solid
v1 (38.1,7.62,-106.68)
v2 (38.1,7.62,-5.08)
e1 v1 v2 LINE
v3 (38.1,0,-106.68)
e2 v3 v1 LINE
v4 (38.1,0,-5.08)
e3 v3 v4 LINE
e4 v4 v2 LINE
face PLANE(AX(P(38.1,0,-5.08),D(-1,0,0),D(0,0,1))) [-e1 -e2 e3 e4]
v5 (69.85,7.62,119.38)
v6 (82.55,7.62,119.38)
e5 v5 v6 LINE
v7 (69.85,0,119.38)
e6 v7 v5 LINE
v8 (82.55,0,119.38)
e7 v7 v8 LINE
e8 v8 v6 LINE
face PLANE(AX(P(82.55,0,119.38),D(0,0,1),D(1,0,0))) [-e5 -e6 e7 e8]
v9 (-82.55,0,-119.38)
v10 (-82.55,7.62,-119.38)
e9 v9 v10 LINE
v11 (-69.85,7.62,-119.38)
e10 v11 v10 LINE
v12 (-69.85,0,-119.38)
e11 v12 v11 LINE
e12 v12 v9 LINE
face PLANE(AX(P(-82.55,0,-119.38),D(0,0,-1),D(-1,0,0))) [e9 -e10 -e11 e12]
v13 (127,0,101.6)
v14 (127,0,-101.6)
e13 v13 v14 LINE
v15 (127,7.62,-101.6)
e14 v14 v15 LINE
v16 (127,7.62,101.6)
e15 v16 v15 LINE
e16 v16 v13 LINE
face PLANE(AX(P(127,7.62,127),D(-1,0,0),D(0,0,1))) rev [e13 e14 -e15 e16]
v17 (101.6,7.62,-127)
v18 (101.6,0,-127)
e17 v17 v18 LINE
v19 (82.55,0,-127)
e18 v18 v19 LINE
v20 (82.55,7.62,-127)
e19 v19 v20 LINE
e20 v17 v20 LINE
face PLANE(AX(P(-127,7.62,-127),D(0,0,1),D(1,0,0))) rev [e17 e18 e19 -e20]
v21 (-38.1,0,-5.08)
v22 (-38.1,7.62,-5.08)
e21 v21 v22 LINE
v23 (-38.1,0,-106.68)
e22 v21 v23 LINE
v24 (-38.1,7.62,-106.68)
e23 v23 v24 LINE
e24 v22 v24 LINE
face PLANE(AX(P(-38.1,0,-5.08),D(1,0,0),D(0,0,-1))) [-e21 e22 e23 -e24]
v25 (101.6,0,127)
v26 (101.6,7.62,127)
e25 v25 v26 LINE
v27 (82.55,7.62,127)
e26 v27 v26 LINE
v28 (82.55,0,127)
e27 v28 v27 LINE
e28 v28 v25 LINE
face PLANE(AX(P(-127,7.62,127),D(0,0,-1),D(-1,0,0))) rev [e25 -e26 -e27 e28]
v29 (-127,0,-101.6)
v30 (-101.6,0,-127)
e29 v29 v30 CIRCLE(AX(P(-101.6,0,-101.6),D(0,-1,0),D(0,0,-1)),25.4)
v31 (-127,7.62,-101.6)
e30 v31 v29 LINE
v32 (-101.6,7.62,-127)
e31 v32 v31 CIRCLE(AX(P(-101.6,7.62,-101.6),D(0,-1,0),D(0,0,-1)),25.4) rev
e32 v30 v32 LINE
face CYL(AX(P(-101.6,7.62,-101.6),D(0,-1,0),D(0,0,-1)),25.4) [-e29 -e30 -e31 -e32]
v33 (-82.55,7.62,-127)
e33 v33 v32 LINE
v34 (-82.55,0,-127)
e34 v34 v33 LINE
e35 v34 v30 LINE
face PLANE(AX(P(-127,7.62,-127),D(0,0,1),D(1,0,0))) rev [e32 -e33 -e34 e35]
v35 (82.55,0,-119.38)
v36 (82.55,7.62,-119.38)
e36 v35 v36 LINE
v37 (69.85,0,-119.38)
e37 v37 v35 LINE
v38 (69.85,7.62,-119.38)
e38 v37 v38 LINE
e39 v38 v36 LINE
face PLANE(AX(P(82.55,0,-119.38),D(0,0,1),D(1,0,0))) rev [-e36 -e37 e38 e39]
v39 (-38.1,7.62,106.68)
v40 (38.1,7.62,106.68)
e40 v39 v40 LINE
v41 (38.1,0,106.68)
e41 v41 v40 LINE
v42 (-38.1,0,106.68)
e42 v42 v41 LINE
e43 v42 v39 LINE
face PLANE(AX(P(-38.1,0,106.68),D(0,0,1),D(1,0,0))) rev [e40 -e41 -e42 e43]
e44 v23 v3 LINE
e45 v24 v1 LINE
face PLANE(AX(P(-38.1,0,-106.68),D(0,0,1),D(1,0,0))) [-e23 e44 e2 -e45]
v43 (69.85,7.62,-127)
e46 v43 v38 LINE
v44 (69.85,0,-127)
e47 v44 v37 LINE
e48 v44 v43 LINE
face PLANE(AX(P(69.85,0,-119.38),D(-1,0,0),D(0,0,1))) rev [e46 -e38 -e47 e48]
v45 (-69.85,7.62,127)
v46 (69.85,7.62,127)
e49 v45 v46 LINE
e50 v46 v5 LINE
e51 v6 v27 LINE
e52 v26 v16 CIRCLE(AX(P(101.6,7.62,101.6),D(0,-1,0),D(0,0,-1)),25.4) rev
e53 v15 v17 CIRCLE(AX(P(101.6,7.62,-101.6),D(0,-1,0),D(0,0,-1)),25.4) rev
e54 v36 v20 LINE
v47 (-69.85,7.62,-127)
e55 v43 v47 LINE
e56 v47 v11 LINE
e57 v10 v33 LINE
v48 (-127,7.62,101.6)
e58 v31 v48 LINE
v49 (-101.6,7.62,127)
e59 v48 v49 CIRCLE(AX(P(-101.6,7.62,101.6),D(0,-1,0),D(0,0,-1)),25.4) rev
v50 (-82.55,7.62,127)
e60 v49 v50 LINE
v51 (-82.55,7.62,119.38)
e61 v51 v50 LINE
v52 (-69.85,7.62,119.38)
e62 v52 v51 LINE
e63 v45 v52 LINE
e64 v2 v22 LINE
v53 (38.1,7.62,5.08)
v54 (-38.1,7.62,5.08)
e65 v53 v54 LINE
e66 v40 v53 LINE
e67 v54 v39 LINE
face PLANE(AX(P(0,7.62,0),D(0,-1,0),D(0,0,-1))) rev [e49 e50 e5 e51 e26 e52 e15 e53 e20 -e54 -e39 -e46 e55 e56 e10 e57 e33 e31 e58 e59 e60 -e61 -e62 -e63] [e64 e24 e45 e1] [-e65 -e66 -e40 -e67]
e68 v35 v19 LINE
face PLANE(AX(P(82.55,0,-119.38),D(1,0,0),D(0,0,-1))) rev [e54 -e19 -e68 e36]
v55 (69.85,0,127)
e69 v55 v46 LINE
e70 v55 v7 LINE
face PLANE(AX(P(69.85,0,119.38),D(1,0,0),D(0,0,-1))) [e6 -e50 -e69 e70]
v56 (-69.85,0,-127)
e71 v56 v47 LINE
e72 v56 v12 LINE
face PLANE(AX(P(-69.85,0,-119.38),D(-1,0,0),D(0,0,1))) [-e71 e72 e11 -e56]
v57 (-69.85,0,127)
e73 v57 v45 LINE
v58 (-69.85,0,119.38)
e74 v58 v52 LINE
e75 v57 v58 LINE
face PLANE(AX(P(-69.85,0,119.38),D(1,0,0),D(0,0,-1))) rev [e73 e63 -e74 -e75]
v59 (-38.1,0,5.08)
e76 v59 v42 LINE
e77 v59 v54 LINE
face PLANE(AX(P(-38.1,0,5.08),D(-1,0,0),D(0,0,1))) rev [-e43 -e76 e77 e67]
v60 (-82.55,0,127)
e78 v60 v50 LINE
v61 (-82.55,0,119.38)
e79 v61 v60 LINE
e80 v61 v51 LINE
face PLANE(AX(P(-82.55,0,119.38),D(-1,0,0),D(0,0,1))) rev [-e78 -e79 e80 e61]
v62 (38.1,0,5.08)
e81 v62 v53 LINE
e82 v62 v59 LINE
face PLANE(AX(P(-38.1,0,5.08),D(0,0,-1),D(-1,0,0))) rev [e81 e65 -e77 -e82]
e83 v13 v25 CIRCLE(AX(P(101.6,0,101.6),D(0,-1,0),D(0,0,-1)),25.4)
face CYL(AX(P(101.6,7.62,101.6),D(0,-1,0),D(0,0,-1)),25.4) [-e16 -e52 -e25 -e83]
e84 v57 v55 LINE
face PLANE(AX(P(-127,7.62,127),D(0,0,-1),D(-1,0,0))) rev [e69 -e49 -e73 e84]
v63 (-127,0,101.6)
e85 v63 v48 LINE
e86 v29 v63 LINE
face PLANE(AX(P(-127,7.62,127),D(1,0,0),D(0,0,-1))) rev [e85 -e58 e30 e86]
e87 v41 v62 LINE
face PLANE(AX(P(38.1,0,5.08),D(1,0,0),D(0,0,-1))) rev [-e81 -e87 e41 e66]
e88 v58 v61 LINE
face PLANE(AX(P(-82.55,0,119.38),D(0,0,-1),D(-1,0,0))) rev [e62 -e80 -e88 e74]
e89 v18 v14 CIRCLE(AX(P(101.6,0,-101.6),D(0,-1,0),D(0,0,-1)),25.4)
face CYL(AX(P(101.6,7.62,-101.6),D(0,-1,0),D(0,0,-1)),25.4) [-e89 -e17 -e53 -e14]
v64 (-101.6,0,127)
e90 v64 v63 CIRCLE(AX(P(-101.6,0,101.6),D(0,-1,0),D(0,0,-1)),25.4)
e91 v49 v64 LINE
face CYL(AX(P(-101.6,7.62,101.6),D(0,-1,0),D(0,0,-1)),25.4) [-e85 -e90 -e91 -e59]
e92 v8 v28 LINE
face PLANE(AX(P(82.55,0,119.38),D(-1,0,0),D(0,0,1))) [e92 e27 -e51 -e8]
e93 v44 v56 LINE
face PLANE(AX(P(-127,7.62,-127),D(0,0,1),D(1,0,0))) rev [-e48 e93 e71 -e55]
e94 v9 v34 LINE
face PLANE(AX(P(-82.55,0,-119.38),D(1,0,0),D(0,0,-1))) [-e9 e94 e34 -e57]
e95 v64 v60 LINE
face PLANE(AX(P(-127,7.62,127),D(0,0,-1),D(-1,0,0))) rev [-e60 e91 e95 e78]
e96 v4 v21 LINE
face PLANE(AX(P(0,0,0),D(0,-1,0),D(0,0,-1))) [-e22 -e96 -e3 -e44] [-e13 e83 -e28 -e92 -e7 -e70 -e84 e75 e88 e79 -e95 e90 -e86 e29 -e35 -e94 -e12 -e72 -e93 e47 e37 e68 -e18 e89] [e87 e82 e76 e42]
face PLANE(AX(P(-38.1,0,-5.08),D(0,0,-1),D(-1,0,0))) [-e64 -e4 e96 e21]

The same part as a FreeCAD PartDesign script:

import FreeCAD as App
import Part
import Sketcher

V = App.Vector
Q = App.Units.Quantity


def edges_at(feature, points):
    """Names of the edges that pass closest to the given points."""
    edges = feature.Shape.Edges
    near = lambda p: min(range(len(edges)), key=lambda i: edges[i].distToShape(Part.Vertex(*p))[0])
    return sorted({f"Edge{near(p) + 1}" for p in points})


def add_polygon(sketch, points):
    """Adds a closed chain of lines whose ends are joined by coincident constraints."""
    first, n = sketch.GeometryCount, len(points)
    for a, b in zip(points, points[1:] + points[:1]):
        sketch.addGeometry(Part.LineSegment(App.Vector(*a, 0), App.Vector(*b, 0)), False)
    for i in range(n):
        sketch.addConstraint(Sketcher.Constraint("Coincident", first + i, 2, first + (i + 1) % n, 1))

doc = App.newDocument("Part")
body = doc.addObject("PartDesign::Body", "Body")

sketch1 = doc.addObject("Sketcher::SketchObject", "Sketch")
body.addObject(sketch1)
sketch1.AttachmentSupport = (doc.XZ_Plane, [""])
sketch1.MapMode = "FlatFace"
add_polygon(sketch1, [(-127, -127), (-127, 127), (127, 127), (127, -127)])
sketch1.addConstraint([
    Sketcher.Constraint("Vertical", 0),
    Sketcher.Constraint("Horizontal", 1),
    Sketcher.Constraint("Vertical", 2),
    Sketcher.Constraint("Horizontal", 3),
    Sketcher.Constraint("Symmetric", 0, 2, 2, 2, -1, 1),
    Sketcher.Constraint("Equal", 3, 0),
    Sketcher.Constraint("DistanceX", 1, 1, 1, 2, Q("10 in")),
])
pad1 = doc.addObject("PartDesign::Pad", "Pad")
body.addObject(pad1)
pad1.Profile = sketch1
pad1.Length = Q("0.3 in")
pad1.Reversed = True

sketch2 = doc.addObject("Sketcher::SketchObject", "Sketch001")
body.addObject(sketch2)
sketch2.AttachmentSupport = (doc.XZ_Plane, [""])
sketch2.MapMode = "FlatFace"
sketch2.AttachmentOffset = App.Placement(V(0, 0, -0.3 * 25.4), App.Rotation())
add_polygon(sketch2, [(-38, 5), (-38, 107), (38, 107), (38, 5)])
sketch2.addConstraint([
    Sketcher.Constraint("Vertical", 0),
    Sketcher.Constraint("Horizontal", 1),
    Sketcher.Constraint("Vertical", 2),
    Sketcher.Constraint("Horizontal", 3),
    Sketcher.Constraint("DistanceX", 1, 1, 1, 2, Q("3 in")),
    Sketcher.Constraint("DistanceY", 0, 1, 0, 2, Q("4 in")),
    Sketcher.Constraint("DistanceX", 0, 2, -1, 1, Q("1.5 in")),
    Sketcher.Constraint("DistanceY", -1, 1, 0, 2, Q("4.2 in")),
])
pocket1 = doc.addObject("PartDesign::Pocket", "Pocket")
body.addObject(pocket1)
pocket1.Profile = sketch2
pocket1.Type = "ThroughAll"
pocket1.Reversed = True
doc.recompute()

fillet = doc.addObject("PartDesign::Fillet", "Fillet")
body.addObject(fillet)
fillet.Base = (pocket1, edges_at(pocket1, [
    (127, 3.81, 127),
    (-127, 3.81, 127),
    (-127, 3.81, -127),
    (127, 3.81, -127),
]))
fillet.Radius = Q("1 in")

sketch3 = doc.addObject("Sketcher::SketchObject", "Sketch002")
body.addObject(sketch3)
sketch3.AttachmentSupport = (doc.XZ_Plane, [""])
sketch3.MapMode = "FlatFace"
sketch3.AttachmentOffset = App.Placement(V(0, 0, -0.3 * 25.4), App.Rotation())
add_polygon(sketch3, [(-83, 119), (-83, 127), (-70, 127), (-70, 119)])
sketch3.addConstraint([
    Sketcher.Constraint("Vertical", 0),
    Sketcher.Constraint("Horizontal", 1),
    Sketcher.Constraint("Vertical", 2),
    Sketcher.Constraint("Horizontal", 3),
    Sketcher.Constraint("DistanceX", 1, 1, 1, 2, Q("0.5 in")),
    Sketcher.Constraint("DistanceY", 0, 1, 0, 2, Q("0.3 in")),
    Sketcher.Constraint("DistanceY", -1, 1, 0, 2, Q("5 in")),
    Sketcher.Constraint("DistanceX", 0, 2, -1, 1, Q("3.25 in")),
])
pocket2 = doc.addObject("PartDesign::Pocket", "Pocket001")
body.addObject(pocket2)
pocket2.Profile = sketch3
pocket2.Type = "ThroughAll"
pocket2.Reversed = True
doc.recompute()

mirrored = doc.addObject("PartDesign::Mirrored", "Mirrored")
body.addObject(mirrored)
mirrored.Originals = [pocket2]
mirrored.MirrorPlane = (doc.XY_Plane, [""])
body.Tip = mirrored
doc.recompute()

mirrored2 = doc.addObject("PartDesign::Mirrored", "Mirrored001")
body.addObject(mirrored2)
mirrored2.Originals = [pocket1]
mirrored2.MirrorPlane = (doc.XY_Plane, [""])
body.Tip = mirrored2
doc.recompute()

mirrored3 = doc.addObject("PartDesign::Mirrored", "Mirrored002")
body.addObject(mirrored3)
mirrored3.Originals = [pocket2]
mirrored3.MirrorPlane = (doc.YZ_Plane, [""])
body.Tip = mirrored3

sketch4 = doc.addObject("Sketcher::SketchObject", "Sketch003")
body.addObject(sketch4)
sketch4.AttachmentSupport = (doc.XZ_Plane, [""])
sketch4.MapMode = "FlatFace"
sketch4.AttachmentOffset = App.Placement(V(0, 0, -0.3 * 25.4), App.Rotation())
add_polygon(sketch4, [(83, -119), (83, -127), (70, -127), (70, -119)])
sketch4.addConstraint([
    Sketcher.Constraint("Vertical", 0),
    Sketcher.Constraint("Horizontal", 1),
    Sketcher.Constraint("Vertical", 2),
    Sketcher.Constraint("Horizontal", 3),
    Sketcher.Constraint("DistanceX", 1, 2, 1, 1, Q("0.5 in")),
    Sketcher.Constraint("DistanceY", 0, 2, 0, 1, Q("0.3 in")),
    Sketcher.Constraint("DistanceY", 0, 2, -1, 1, Q("5 in")),
    Sketcher.Constraint("DistanceX", -1, 1, 0, 2, Q("3.25 in")),
])
pocket3 = doc.addObject("PartDesign::Pocket", "Pocket002")
body.addObject(pocket3)
pocket3.Profile = sketch4
pocket3.Type = "ThroughAll"
pocket3.Reversed = True

doc.recompute()
